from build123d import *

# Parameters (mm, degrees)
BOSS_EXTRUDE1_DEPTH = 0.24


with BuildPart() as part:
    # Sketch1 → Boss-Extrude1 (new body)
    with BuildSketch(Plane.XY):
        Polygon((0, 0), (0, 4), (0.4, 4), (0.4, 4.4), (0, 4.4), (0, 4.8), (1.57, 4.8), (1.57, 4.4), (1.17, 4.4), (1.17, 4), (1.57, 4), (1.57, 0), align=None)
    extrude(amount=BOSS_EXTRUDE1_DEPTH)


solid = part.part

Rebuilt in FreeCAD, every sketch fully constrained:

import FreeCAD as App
import Part
import Sketcher
from FreeCAD import Vector

doc = App.newDocument("Part")
params = doc.addObject("Spreadsheet::Sheet", "Params")
for row, (alias, value) in enumerate([
    ("sketch1_height", "4 mm"),
    ("sketch1_width", "0.4 mm"),
    ("sketch1_width2", "1.57 mm"),
    ("pad1_length", "0.24 mm"),
], start=1):
    params.set(f"A{row}", alias)
    params.set(f"B{row}", "=" + value)
    params.setAlias(f"B{row}", alias)

body = doc.addObject("PartDesign::Body", "Body")

sketch1 = body.newObject("Sketcher::SketchObject", "Sketch")
sketch1.AttachmentSupport = (doc.getObject("XY_Plane"), [""])
sketch1.MapMode = "FlatFace"
sketch1.addGeometry([
    Part.LineSegment(Vector(0, 4, 0), Vector(0, 0, 0)),
    Part.LineSegment(Vector(0, 0, 0), Vector(1.57, 0, 0)),
    Part.LineSegment(Vector(1.57, 0, 0), Vector(1.57, 4, 0)),
    Part.LineSegment(Vector(1.57, 4, 0), Vector(1.17, 4, 0)),
    Part.LineSegment(Vector(1.17, 4, 0), Vector(1.17, 4.4, 0)),
    Part.LineSegment(Vector(1.17, 4.4, 0), Vector(1.57, 4.4, 0)),
    Part.LineSegment(Vector(1.57, 4.4, 0), Vector(1.57, 4.8, 0)),
    Part.LineSegment(Vector(1.57, 4.8, 0), Vector(0, 4.8, 0)),
    Part.LineSegment(Vector(0, 4.8, 0), Vector(0, 4.4, 0)),
    Part.LineSegment(Vector(0, 4.4, 0), Vector(0.4, 4.4, 0)),
    Part.LineSegment(Vector(0.4, 4.4, 0), Vector(0.4, 4, 0)),
    Part.LineSegment(Vector(0.4, 4, 0), Vector(0, 4, 0)),
], False)
sketch1.addConstraint([
    Sketcher.Constraint("Coincident", 0, 2, 1, 1),
    Sketcher.Constraint("Coincident", 1, 2, 2, 1),
    Sketcher.Constraint("Coincident", 2, 2, 3, 1),
    Sketcher.Constraint("Coincident", 3, 2, 4, 1),
    Sketcher.Constraint("Coincident", 4, 2, 5, 1),
    Sketcher.Constraint("Coincident", 5, 2, 6, 1),
    Sketcher.Constraint("Coincident", 6, 2, 7, 1),
    Sketcher.Constraint("Coincident", 7, 2, 8, 1),
    Sketcher.Constraint("Coincident", 8, 2, 9, 1),
    Sketcher.Constraint("Coincident", 9, 2, 10, 1),
    Sketcher.Constraint("Coincident", 10, 2, 11, 1),
    Sketcher.Constraint("Coincident", 11, 2, 0, 1),
    Sketcher.Constraint("Vertical", 0),
    Sketcher.Constraint("Horizontal", 1),
    Sketcher.Constraint("Vertical", 2),
    Sketcher.Constraint("Horizontal", 3),
    Sketcher.Constraint("Vertical", 4),
    Sketcher.Constraint("Horizontal", 5),
    Sketcher.Constraint("Vertical", 6),
    Sketcher.Constraint("Horizontal", 7),
    Sketcher.Constraint("Vertical", 8),
    Sketcher.Constraint("Horizontal", 9),
    Sketcher.Constraint("Vertical", 10),
    Sketcher.Constraint("Horizontal", 11),
    Sketcher.Constraint("Coincident", 0, 2, -1, 1),
    Sketcher.Constraint("PointOnObject", 7, 2, -2),
    Sketcher.Constraint("Horizontal", 5, 2, 8, 2),
    Sketcher.Constraint("Horizontal", 3, 2, 10, 2),
    Sketcher.Constraint("Vertical", 2, 2, 5, 2),
    Sketcher.Constraint("Equal", 5, 9),
    Sketcher.Constraint("Equal", 11, 4),
    Sketcher.Constraint("Equal", 4, 6),
    Sketcher.Constraint("DistanceY", 0, 2, 0, 1, 4.0),
    Sketcher.Constraint("DistanceX", 3, 2, 3, 1, 0.4),
    Sketcher.Constraint("DistanceX", 1, 1, 1, 2, 1.57),
])
sketch1.setExpression("Constraints[32]", "Params.sketch1_height")
sketch1.setExpression("Constraints[33]", "Params.sketch1_width")
sketch1.setExpression("Constraints[34]", "Params.sketch1_width2")
pad1 = body.newObject("PartDesign::Pad", "Pad")
pad1.Profile = sketch1
pad1.setExpression("Length", "Params.pad1_length")

doc.recompute()
